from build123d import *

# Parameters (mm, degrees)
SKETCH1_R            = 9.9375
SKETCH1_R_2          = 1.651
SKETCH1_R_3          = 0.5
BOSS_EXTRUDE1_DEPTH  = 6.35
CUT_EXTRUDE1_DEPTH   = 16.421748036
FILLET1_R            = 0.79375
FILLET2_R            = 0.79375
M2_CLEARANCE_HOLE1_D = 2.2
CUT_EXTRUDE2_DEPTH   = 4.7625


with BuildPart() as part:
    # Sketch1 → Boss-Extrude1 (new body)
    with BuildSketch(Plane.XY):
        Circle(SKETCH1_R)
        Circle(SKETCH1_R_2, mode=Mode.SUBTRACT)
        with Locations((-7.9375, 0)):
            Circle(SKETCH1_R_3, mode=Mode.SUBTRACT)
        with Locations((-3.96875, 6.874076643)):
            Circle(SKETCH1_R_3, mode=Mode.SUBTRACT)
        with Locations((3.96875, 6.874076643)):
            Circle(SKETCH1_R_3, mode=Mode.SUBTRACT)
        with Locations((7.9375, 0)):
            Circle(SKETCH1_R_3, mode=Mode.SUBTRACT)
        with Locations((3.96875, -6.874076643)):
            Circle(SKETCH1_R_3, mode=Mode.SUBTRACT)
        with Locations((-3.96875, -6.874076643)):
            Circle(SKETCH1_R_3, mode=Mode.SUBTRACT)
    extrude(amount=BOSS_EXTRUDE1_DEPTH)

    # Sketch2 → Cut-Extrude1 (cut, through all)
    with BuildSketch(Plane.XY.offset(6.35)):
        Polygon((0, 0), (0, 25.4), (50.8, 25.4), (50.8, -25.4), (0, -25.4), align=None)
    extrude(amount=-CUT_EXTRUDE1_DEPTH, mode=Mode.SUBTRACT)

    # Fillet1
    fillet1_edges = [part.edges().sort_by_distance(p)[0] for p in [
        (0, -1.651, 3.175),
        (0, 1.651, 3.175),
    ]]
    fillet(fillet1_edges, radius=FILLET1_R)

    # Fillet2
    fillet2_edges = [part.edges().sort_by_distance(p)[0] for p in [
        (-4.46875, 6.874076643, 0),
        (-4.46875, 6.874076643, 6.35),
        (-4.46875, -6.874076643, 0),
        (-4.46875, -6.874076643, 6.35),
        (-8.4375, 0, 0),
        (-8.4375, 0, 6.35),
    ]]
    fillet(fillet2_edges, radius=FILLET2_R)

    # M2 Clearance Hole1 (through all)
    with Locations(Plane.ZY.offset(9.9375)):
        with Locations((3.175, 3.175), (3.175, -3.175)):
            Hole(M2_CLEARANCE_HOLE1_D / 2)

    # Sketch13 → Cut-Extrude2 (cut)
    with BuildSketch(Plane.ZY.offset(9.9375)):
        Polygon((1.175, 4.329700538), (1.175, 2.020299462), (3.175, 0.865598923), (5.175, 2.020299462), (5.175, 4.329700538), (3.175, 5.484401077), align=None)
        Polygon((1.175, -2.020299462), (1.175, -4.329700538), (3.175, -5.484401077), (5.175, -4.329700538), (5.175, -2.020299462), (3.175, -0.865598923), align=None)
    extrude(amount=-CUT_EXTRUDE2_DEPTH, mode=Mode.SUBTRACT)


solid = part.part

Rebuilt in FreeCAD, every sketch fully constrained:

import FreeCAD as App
import Part
import Sketcher
Q = App.Units.Quantity


def edges_at(feature, points):
    """Names of the edges that pass closest to the given points."""
    edges = feature.Shape.Edges
    near = lambda p: min(range(len(edges)), key=lambda i: edges[i].distToShape(Part.Vertex(*p))[0])
    return sorted({f"Edge{near(p) + 1}" for p in points})


def add_polygon(sketch, points):
    """Adds a closed chain of lines whose ends are joined by coincident constraints."""
    first, n = sketch.GeometryCount, len(points)
    for a, b in zip(points, points[1:] + points[:1]):
        sketch.addGeometry(Part.LineSegment(App.Vector(*a, 0), App.Vector(*b, 0)), False)
    for i in range(n):
        sketch.addConstraint(Sketcher.Constraint("Coincident", first + i, 2, first + (i + 1) % n, 1))

doc = App.newDocument("Part")
body = doc.addObject("PartDesign::Body", "Body")

sketch1 = body.newObject("Sketcher::SketchObject", "Sketch")
sketch1.AttachmentSupport = (doc.getObject("XY_Plane"), [""])
sketch1.MapMode = "FlatFace"
sketch1.addGeometry([
    Part.Circle(App.Vector(0, 0, 0), App.Vector(0, 0, 1), 9.9),
    Part.Circle(App.Vector(-4, -6.9, 0), App.Vector(0, 0, 1), 0.5),
    Part.Circle(App.Vector(4, -6.9, 0), App.Vector(0, 0, 1), 0.5),
    Part.Circle(App.Vector(-7.9, 0, 0), App.Vector(0, 0, 1), 0.5),
    Part.Circle(App.Vector(-4, 6.9, 0), App.Vector(0, 0, 1), 0.5),
    Part.Circle(App.Vector(0, 0, 0), App.Vector(0, 0, 1), 1.7),
    Part.Circle(App.Vector(7.9, 0, 0), App.Vector(0, 0, 1), 0.5),
    Part.Circle(App.Vector(4, 6.9, 0), App.Vector(0, 0, 1), 0.5),
], False)
sketch1.addConstraint([
    Sketcher.Constraint("Coincident", 0, 3, -1, 1),
    Sketcher.Constraint("Coincident", 5, 3, -1, 1),
    Sketcher.Constraint("Equal", 1, 2),
    Sketcher.Constraint("Equal", 2, 3),
    Sketcher.Constraint("Equal", 3, 4),
    Sketcher.Constraint("Equal", 4, 6),
    Sketcher.Constraint("Equal", 6, 7),
    Sketcher.Constraint("Symmetric", 2, 3, 4, 3, -1, 1),
    Sketcher.Constraint("Symmetric", 3, 3, 6, 3, -1, 1),
    Sketcher.Constraint("Symmetric", 1, 3, 7, 3, -1, 1),
    Sketcher.Constraint("Symmetric", 1, 3, 2, 3, -2),
    Sketcher.Constraint("PointOnObject", 3, 3, -1),
    Sketcher.Constraint("Diameter", 5, Q("0.13 in")),
    Sketcher.Constraint("Diameter", 0, Q("19.875 mm")),
    Sketcher.Constraint("Diameter", 1, Q("1 mm")),
    Sketcher.Constraint("DistanceX", 1, 3, -1, 1, Q("0.15625 in")),
    Sketcher.Constraint("DistanceX", 3, 3, -1, 1, Q("0.3125 in")),
    Sketcher.Constraint("DistanceY", 1, 3, -1, 1, Q("6.874077 mm")),
])
pad1 = body.newObject("PartDesign::Pad", "Pad")
pad1.Profile = sketch1
pad1.Length = Q("0.25 in")

sketch2 = body.newObject("Sketcher::SketchObject", "Sketch001")
sketch2.AttachmentSupport = (doc.getObject("XY_Plane"), [""])
sketch2.MapMode = "FlatFace"
sketch2.AttachmentOffset = App.Placement(App.Vector(0, 0, 0.25 * 25.4), App.Rotation())
add_polygon(sketch2, [(0, 25), (0, -25), (51, -25), (51, 25)])
sketch2.addConstraint([
    Sketcher.Constraint("Vertical", 0),
    Sketcher.Constraint("Horizontal", 1),
    Sketcher.Constraint("Vertical", 2),
    Sketcher.Constraint("Horizontal", 3),
    Sketcher.Constraint("Symmetric", 0, 2, 3, 2, -1, 1),
    Sketcher.Constraint("Equal", 3, 0),
    Sketcher.Constraint("DistanceX", 1, 1, 1, 2, Q("2 in")),
])
pocket1 = body.newObject("PartDesign::Pocket", "Pocket")
pocket1.Profile = sketch2
pocket1.Type = "ThroughAll"
doc.recompute()

fillet = body.newObject("PartDesign::Fillet", "Fillet")
fillet.Base = (pocket1, edges_at(pocket1, [(0, -1.651, 3.175), (0, 1.651, 3.175)]))
fillet.Radius = Q("0.03125 in")
doc.recompute()

fillet2 = body.newObject("PartDesign::Fillet", "Fillet001")
fillet2.Base = (fillet, edges_at(fillet, [
    (-4.469, 6.874, 0),
    (-4.469, 6.874, 6.35),
    (-4.469, -6.874, 0),
    (-4.469, -6.874, 6.35),
    (-8.438, 0, 0),
    (-8.438, 0, 6.35),
]))
fillet2.Radius = Q("0.03125 in")

sketch3 = body.newObject("Sketcher::SketchObject", "Sketch002")
sketch3.AttachmentSupport = (doc.getObject("YZ_Plane"), [""])
sketch3.MapMode = "FlatFace"
sketch3.AttachmentOffset = App.Placement(App.Vector(0, 0, -9.9375), App.Rotation())
sketch3.addGeometry([
    Part.Circle(App.Vector(3.2, 3.2, 0), App.Vector(0, 0, 1), 1.1),
    Part.Circle(App.Vector(-3.2, 3.2, 0), App.Vector(0, 0, 1), 1.1),
], False)
sketch3.addConstraint([
    Sketcher.Constraint("Equal", 0, 1),
    Sketcher.Constraint("Symmetric", 0, 3, 1, 3, -2),
    Sketcher.Constraint("Diameter", 0, Q("2.2 mm")),
    Sketcher.Constraint("DistanceX", 1, 3, 0, 3, Q("0.25 in")),
    Sketcher.Constraint("DistanceY", -1, 1, 0, 3, Q("0.125 in")),
])
doc.recompute()
hole = body.newObject("PartDesign::Hole", "Hole")
hole.Profile = sketch3
hole.ThreadType = "None"
hole.Diameter = 2.2
hole.DepthType = "ThroughAll"
hole.Reversed = True

sketch4 = body.newObject("Sketcher::SketchObject", "Sketch003")
sketch4.AttachmentSupport = (doc.getObject("YZ_Plane"), [""])
sketch4.MapMode = "FlatFace"
sketch4.AttachmentOffset = App.Placement(App.Vector(0, 0, -9.9375), App.Rotation())
add_polygon(sketch4, [(4.3, 1.2), (2, 1.2), (0.9, 3.2), (2, 5.2), (4.3, 5.2), (5.5, 3.2)])
add_polygon(sketch4, [(-2, 1.2), (-4.3, 1.2), (-5.5, 3.2), (-4.3, 5.2), (-2, 5.2), (-0.9, 3.2)])
sketch4.addConstraint([
    Sketcher.Constraint("Horizontal", 0),
    Sketcher.Constraint("Horizontal", 3),
    Sketcher.Constraint("Horizontal", 6),
    Sketcher.Constraint("Horizontal", 9),
    Sketcher.Constraint("Symmetric", 5, 2, 6, 2, -2),
    Sketcher.Constraint("Symmetric", 4, 2, 7, 2, -2),
    Sketcher.Constraint("Symmetric", 3, 2, 8, 2, -2),
    Sketcher.Constraint("Symmetric", 1, 2, 10, 2, -2),
    Sketcher.Constraint("Parallel", 1, 4),
    Sketcher.Constraint("Parallel", 2, 5),
    Sketcher.Constraint("Parallel", 4, 7),
    Sketcher.Constraint("Parallel", 7, 10),
    Sketcher.Constraint("Parallel", 8, 11),
    Sketcher.Constraint("Horizontal", 1, 2, 4, 2),
    Sketcher.Constraint("Vertical", 0, 2, 2, 2),
    Sketcher.Constraint("Angle", 1, Q("120 deg")),
    Sketcher.Constraint("DistanceX", 6, 2, 0, 2, Q("0.25 in")),
    Sketcher.Constraint("DistanceY", -1, 1, 1, 2, Q("0.125 in")),
    Sketcher.Constraint("DistanceX", 0, 2, 0, 1, Q("2.309401 mm")),
    Sketcher.Constraint("Distance", 1, Q("2.309401 mm")),
])
pocket2 = body.newObject("PartDesign::Pocket", "Pocket001")
pocket2.Profile = sketch4
pocket2.Length = Q("0.1875 in")
pocket2.Reversed = True

doc.recompute()
